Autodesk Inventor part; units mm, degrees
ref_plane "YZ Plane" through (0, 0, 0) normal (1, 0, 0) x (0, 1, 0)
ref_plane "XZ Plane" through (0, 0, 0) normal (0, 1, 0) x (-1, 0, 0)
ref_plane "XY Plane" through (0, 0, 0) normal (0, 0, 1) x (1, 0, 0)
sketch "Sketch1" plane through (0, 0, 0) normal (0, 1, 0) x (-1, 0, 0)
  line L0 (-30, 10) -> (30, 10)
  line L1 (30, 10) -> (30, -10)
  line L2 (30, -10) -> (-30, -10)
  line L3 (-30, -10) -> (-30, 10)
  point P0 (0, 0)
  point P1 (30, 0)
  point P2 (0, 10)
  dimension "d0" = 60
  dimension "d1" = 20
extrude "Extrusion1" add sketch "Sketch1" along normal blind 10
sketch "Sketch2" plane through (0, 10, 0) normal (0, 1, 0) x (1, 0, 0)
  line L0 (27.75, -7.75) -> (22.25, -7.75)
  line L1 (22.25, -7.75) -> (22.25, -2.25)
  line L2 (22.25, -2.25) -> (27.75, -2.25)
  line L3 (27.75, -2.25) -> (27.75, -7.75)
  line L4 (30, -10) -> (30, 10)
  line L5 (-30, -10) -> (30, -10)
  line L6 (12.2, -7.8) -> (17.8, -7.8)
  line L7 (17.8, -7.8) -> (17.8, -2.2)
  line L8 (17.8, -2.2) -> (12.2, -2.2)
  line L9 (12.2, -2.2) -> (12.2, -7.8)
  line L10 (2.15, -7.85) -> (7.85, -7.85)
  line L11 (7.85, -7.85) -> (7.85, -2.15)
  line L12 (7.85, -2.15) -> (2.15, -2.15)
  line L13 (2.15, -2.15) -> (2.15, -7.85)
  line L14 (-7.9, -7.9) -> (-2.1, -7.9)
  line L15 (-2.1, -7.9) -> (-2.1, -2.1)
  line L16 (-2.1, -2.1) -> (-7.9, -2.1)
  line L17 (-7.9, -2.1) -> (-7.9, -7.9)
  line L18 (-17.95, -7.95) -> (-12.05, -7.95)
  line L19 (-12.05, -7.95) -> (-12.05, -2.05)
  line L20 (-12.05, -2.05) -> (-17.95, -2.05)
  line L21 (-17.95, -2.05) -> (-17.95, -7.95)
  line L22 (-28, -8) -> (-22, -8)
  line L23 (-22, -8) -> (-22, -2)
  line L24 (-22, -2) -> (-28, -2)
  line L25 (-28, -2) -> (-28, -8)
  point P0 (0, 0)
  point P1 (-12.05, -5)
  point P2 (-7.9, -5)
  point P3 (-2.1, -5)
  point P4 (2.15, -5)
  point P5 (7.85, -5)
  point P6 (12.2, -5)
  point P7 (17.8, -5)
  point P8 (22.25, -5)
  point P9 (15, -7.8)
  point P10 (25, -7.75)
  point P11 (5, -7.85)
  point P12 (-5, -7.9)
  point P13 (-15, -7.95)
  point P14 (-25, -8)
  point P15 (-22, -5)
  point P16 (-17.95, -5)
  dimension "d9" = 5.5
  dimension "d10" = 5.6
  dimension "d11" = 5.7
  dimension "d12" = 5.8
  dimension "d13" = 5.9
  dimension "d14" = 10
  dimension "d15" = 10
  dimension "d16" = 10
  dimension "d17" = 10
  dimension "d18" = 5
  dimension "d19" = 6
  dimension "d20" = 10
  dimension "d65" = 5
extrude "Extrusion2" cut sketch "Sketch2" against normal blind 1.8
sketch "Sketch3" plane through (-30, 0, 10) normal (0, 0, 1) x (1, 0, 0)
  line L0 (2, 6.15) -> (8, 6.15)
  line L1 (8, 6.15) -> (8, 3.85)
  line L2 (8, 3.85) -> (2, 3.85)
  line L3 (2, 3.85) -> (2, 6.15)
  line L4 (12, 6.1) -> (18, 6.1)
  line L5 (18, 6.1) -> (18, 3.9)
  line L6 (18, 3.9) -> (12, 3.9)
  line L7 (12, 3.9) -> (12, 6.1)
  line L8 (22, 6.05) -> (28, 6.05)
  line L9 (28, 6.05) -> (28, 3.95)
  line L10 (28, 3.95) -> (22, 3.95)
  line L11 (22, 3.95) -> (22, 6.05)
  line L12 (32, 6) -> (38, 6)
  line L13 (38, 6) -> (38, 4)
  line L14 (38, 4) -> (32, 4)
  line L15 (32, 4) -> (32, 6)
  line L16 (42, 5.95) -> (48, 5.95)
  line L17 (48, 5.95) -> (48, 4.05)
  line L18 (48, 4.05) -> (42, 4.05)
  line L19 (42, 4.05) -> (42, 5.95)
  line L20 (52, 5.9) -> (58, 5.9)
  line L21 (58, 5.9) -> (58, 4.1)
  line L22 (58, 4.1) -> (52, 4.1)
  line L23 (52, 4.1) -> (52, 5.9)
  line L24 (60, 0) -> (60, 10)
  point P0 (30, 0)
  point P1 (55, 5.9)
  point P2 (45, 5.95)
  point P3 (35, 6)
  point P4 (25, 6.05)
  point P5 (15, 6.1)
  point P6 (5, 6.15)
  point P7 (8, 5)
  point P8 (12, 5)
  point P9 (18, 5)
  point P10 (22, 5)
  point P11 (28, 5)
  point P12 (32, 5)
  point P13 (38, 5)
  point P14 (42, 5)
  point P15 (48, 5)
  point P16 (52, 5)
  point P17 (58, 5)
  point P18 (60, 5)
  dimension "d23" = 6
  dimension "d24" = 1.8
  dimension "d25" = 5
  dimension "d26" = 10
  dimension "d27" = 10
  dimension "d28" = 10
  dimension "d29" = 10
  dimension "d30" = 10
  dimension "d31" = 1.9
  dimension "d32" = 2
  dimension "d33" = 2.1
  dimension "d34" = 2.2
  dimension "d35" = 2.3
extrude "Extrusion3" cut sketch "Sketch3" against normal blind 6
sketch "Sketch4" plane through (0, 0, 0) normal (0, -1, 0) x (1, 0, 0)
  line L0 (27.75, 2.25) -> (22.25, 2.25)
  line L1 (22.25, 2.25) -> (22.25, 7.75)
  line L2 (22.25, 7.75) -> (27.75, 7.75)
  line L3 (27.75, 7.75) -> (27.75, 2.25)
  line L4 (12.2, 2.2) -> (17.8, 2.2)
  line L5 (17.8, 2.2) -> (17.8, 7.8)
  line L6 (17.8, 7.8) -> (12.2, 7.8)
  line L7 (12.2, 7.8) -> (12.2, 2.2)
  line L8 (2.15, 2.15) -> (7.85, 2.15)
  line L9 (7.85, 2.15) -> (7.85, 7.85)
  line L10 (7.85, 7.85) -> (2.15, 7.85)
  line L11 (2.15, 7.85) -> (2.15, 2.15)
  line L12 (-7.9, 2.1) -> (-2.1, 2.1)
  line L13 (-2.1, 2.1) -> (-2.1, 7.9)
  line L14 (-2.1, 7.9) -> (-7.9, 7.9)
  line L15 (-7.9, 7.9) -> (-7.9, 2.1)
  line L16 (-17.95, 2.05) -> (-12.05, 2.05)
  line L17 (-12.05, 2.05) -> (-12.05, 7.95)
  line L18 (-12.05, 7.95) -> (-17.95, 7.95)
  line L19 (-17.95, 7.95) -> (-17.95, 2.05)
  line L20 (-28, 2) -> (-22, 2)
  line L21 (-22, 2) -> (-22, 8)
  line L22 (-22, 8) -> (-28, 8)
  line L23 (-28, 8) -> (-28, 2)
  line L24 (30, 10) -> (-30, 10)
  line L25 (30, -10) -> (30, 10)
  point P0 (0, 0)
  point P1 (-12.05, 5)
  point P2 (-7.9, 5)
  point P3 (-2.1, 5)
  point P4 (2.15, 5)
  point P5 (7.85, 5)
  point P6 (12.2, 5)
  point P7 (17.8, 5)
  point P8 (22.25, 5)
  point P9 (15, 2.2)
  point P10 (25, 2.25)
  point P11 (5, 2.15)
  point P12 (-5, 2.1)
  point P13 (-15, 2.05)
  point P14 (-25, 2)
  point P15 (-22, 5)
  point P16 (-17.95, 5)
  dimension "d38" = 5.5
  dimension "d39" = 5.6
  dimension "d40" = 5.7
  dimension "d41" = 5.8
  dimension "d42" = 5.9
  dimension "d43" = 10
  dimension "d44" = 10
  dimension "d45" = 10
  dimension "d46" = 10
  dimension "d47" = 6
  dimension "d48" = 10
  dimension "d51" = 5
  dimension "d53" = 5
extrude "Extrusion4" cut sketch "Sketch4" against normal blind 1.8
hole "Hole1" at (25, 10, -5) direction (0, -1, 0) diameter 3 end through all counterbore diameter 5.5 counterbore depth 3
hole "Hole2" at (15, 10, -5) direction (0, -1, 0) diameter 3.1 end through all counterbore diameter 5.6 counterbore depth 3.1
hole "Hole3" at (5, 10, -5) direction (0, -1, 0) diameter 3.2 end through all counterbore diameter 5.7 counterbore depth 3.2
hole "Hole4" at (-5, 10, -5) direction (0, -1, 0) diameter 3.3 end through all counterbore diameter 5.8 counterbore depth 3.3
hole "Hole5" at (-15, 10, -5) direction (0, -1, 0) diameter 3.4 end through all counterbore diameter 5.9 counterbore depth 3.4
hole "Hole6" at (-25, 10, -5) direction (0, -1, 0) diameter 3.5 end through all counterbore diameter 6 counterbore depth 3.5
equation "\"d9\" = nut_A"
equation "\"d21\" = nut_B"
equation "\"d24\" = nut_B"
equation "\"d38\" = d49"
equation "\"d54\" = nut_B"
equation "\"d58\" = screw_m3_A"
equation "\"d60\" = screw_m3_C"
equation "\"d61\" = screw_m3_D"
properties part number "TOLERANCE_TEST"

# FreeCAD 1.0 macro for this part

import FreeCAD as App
import Part
import Sketcher

V = App.Vector
Q = App.Units.Quantity


def add_polygon(sketch, points):
    """Adds a closed chain of lines whose ends are joined by coincident constraints."""
    first, n = sketch.GeometryCount, len(points)
    for a, b in zip(points, points[1:] + points[:1]):
        sketch.addGeometry(Part.LineSegment(App.Vector(*a, 0), App.Vector(*b, 0)), False)
    for i in range(n):
        sketch.addConstraint(Sketcher.Constraint("Coincident", first + i, 2, first + (i + 1) % n, 1))

doc = App.newDocument("Part")
body = doc.addObject("PartDesign::Body", "Body")

# Sketch on XZ plane
sketch1 = body.newObject("Sketcher::SketchObject", "Sketch")
sketch1.AttachmentSupport = (doc.getObject("XZ_Plane"), [""])
sketch1.MapMode = "FlatFace"
add_polygon(sketch1, [(-30, 10), (30, 10), (30, -10), (-30, -10)])  # lines 0-3
sketch1.addConstraint(Sketcher.Constraint("Horizontal", 0))
sketch1.addConstraint(Sketcher.Constraint("Vertical", 1))
sketch1.addConstraint(Sketcher.Constraint("Horizontal", 2))
sketch1.addConstraint(Sketcher.Constraint("Vertical", 3))
sketch1.addConstraint(Sketcher.Constraint("Symmetric", 0, 2, 2, 2, -1, 1))
sketch1.addConstraint(Sketcher.Constraint("DistanceX", 0, 1, 0, 2, Q("60 mm")))
sketch1.addConstraint(Sketcher.Constraint("DistanceY", 1, 2, 1, 1, Q("20 mm")))
pad1 = body.newObject("PartDesign::Pad", "Pad")
pad1.Profile = sketch1
pad1.Length = 10
pad1.Reversed = True

# Sketch on XZ plane
sketch2 = body.newObject("Sketcher::SketchObject", "Sketch001")
sketch2.AttachmentSupport = (doc.getObject("XZ_Plane"), [""])
sketch2.MapMode = "FlatFace"
sketch2.AttachmentOffset = App.Placement(V(0, 0, -10), App.Rotation())
add_polygon(sketch2, [(22.25, 7.75), (27.75, 7.75), (27.75, 2.25), (22.25, 2.25)])  # lines 0-3
add_polygon(sketch2, [(12.2, 2.2), (12.2, 7.8), (17.8, 7.8), (17.8, 2.2)])  # lines 4-7
add_polygon(sketch2, [(2.15, 2.15), (2.15, 7.85), (7.85, 7.85), (7.85, 2.15)])  # lines 8-11
add_polygon(sketch2, [(-7.9, 2.1), (-7.9, 7.9), (-2.1, 7.9), (-2.1, 2.1)])  # lines 12-15
add_polygon(sketch2, [(-17.95, 2.05), (-17.95, 7.95), (-12.05, 7.95), (-12.05, 2.05)])  # lines 16-19
add_polygon(sketch2, [(-28, 2), (-28, 8), (-22, 8), (-22, 2)])  # lines 20-23
sketch2.addConstraint(Sketcher.Constraint("Horizontal", 0))
sketch2.addConstraint(Sketcher.Constraint("Vertical", 1))
sketch2.addConstraint(Sketcher.Constraint("Horizontal", 2))
sketch2.addConstraint(Sketcher.Constraint("Vertical", 3))
sketch2.addConstraint(Sketcher.Constraint("Vertical", 4))
sketch2.addConstraint(Sketcher.Constraint("Horizontal", 5))
sketch2.addConstraint(Sketcher.Constraint("Vertical", 6))
sketch2.addConstraint(Sketcher.Constraint("Horizontal", 7))
sketch2.addConstraint(Sketcher.Constraint("Vertical", 8))
sketch2.addConstraint(Sketcher.Constraint("Horizontal", 9))
sketch2.addConstraint(Sketcher.Constraint("Vertical", 10))
sketch2.addConstraint(Sketcher.Constraint("Horizontal", 11))
sketch2.addConstraint(Sketcher.Constraint("Vertical", 12))
sketch2.addConstraint(Sketcher.Constraint("Horizontal", 13))
sketch2.addConstraint(Sketcher.Constraint("Vertical", 14))
sketch2.addConstraint(Sketcher.Constraint("Horizontal", 15))
sketch2.addConstraint(Sketcher.Constraint("Vertical", 16))
sketch2.addConstraint(Sketcher.Constraint("Horizontal", 17))
sketch2.addConstraint(Sketcher.Constraint("Vertical", 18))
sketch2.addConstraint(Sketcher.Constraint("Horizontal", 19))
sketch2.addConstraint(Sketcher.Constraint("Vertical", 20))
sketch2.addConstraint(Sketcher.Constraint("Horizontal", 21))
sketch2.addConstraint(Sketcher.Constraint("Vertical", 22))
sketch2.addConstraint(Sketcher.Constraint("Horizontal", 23))
sketch2.addConstraint(Sketcher.Constraint("Equal", 2, 1))
sketch2.addConstraint(Sketcher.Constraint("Equal", 7, 4))
sketch2.addConstraint(Sketcher.Constraint("Equal", 11, 8))
sketch2.addConstraint(Sketcher.Constraint("Equal", 15, 12))
sketch2.addConstraint(Sketcher.Constraint("Equal", 19, 16))
sketch2.addConstraint(Sketcher.Constraint("Equal", 23, 20))
sketch2.addConstraint(Sketcher.Constraint("DistanceX", 21, 1, 21, 2, Q("6 mm")))
sketch2.addConstraint(Sketcher.Constraint("DistanceX", 0, 1, 0, 2, Q("5.5 mm")))
sketch2.addConstraint(Sketcher.Constraint("DistanceX", 5, 1, 5, 2, Q("5.6 mm")))
sketch2.addConstraint(Sketcher.Constraint("DistanceX", 9, 1, 9, 2, Q("5.7 mm")))
sketch2.addConstraint(Sketcher.Constraint("DistanceX", 13, 1, 13, 2, Q("5.8 mm")))
sketch2.addConstraint(Sketcher.Constraint("DistanceX", 17, 1, 17, 2, Q("5.9 mm")))
sketch2.addConstraint(Sketcher.Constraint("DistanceX", 20, 2, -1, 1, Q("28 mm")))
sketch2.addConstraint(Sketcher.Constraint("DistanceY", -1, 1, 20, 2, Q("8 mm")))
sketch2.addConstraint(Sketcher.Constraint("DistanceX", -1, 1, 4, 2, Q("12.2 mm")))
sketch2.addConstraint(Sketcher.Constraint("DistanceY", -1, 1, 4, 2, Q("7.8 mm")))
sketch2.addConstraint(Sketcher.Constraint("DistanceX", 12, 2, -1, 1, Q("7.9 mm")))
sketch2.addConstraint(Sketcher.Constraint("DistanceY", -1, 1, 12, 2, Q("7.9 mm")))
sketch2.addConstraint(Sketcher.Constraint("DistanceX", 8, 2, 3, 2, Q("20.1 mm")))
sketch2.addConstraint(Sketcher.Constraint("DistanceY", 3, 2, 8, 2, Q("0.1 mm")))
sketch2.addConstraint(Sketcher.Constraint("DistanceX", 16, 2, 8, 2, Q("20.1 mm")))
sketch2.addConstraint(Sketcher.Constraint("DistanceY", 8, 2, 16, 2, Q("0.1 mm")))
sketch2.addConstraint(Sketcher.Constraint("DistanceX", -1, 1, 0, 2, Q("27.75 mm")))
sketch2.addConstraint(Sketcher.Constraint("DistanceY", -1, 1, 0, 2, Q("7.75 mm")))
pocket1 = body.newObject("PartDesign::Pocket", "Pocket")
pocket1.Profile = sketch2
pocket1.Length = 1.8
pocket1.Reversed = True

# Sketch on XY plane
sketch3 = body.newObject("Sketcher::SketchObject", "Sketch002")
sketch3.AttachmentSupport = (doc.getObject("XY_Plane"), [""])
sketch3.MapMode = "FlatFace"
sketch3.AttachmentOffset = App.Placement(V(0, 0, 10), App.Rotation())
add_polygon(sketch3, [(-22, 6.15), (-28, 6.15), (-28, 3.85), (-22, 3.85)])  # lines 0-3
add_polygon(sketch3, [(-12, 6.1), (-18, 6.1), (-18, 3.9), (-12, 3.9)])  # lines 4-7
add_polygon(sketch3, [(-2, 6.05), (-8, 6.05), (-8, 3.95), (-2, 3.95)])  # lines 8-11
add_polygon(sketch3, [(8, 6), (2, 6), (2, 4), (8, 4)])  # lines 12-15
add_polygon(sketch3, [(18, 5.95), (12, 5.95), (12, 4.05), (18, 4.05)])  # lines 16-19
add_polygon(sketch3, [(28, 5.9), (22, 5.9), (22, 4.1), (28, 4.1)])  # lines 20-23
sketch3.addConstraint(Sketcher.Constraint("Horizontal", 0))
sketch3.addConstraint(Sketcher.Constraint("Vertical", 1))
sketch3.addConstraint(Sketcher.Constraint("Horizontal", 2))
sketch3.addConstraint(Sketcher.Constraint("Vertical", 3))
sketch3.addConstraint(Sketcher.Constraint("Horizontal", 4))
sketch3.addConstraint(Sketcher.Constraint("Vertical", 5))
sketch3.addConstraint(Sketcher.Constraint("Horizontal", 6))
sketch3.addConstraint(Sketcher.Constraint("Vertical", 7))
sketch3.addConstraint(Sketcher.Constraint("Horizontal", 8))
sketch3.addConstraint(Sketcher.Constraint("Vertical", 9))
sketch3.addConstraint(Sketcher.Constraint("Horizontal", 10))
sketch3.addConstraint(Sketcher.Constraint("Vertical", 11))
sketch3.addConstraint(Sketcher.Constraint("Horizontal", 12))
sketch3.addConstraint(Sketcher.Constraint("Vertical", 13))
sketch3.addConstraint(Sketcher.Constraint("Horizontal", 14))
sketch3.addConstraint(Sketcher.Constraint("Vertical", 15))
sketch3.addConstraint(Sketcher.Constraint("Horizontal", 16))
sketch3.addConstraint(Sketcher.Constraint("Vertical", 17))
sketch3.addConstraint(Sketcher.Constraint("Horizontal", 18))
sketch3.addConstraint(Sketcher.Constraint("Vertical", 19))
sketch3.addConstraint(Sketcher.Constraint("Horizontal", 20))
sketch3.addConstraint(Sketcher.Constraint("Vertical", 21))
sketch3.addConstraint(Sketcher.Constraint("Horizontal", 22))
sketch3.addConstraint(Sketcher.Constraint("Vertical", 23))
sketch3.addConstraint(Sketcher.Constraint("Equal", 2, 4))
sketch3.addConstraint(Sketcher.Constraint("Equal", 6, 8))
sketch3.addConstraint(Sketcher.Constraint("Equal", 10, 12))
sketch3.addConstraint(Sketcher.Constraint("Equal", 14, 16))
sketch3.addConstraint(Sketcher.Constraint("Equal", 18, 20))
sketch3.addConstraint(Sketcher.Constraint("DistanceX", 0, 2, 0, 1, Q("6 mm")))
sketch3.addConstraint(Sketcher.Constraint("DistanceY", 13, 2, 13, 1, Q("2 mm")))
sketch3.addConstraint(Sketcher.Constraint("DistanceY", 1, 2, 1, 1, Q("2.3 mm")))
sketch3.addConstraint(Sketcher.Constraint("DistanceY", 5, 2, 5, 1, Q("2.2 mm")))
sketch3.addConstraint(Sketcher.Constraint("DistanceY", 9, 2, 9, 1, Q("2.1 mm")))
sketch3.addConstraint(Sketcher.Constraint("DistanceY", 17, 2, 17, 1, Q("1.9 mm")))
sketch3.addConstraint(Sketcher.Constraint("DistanceY", 21, 2, 21, 1, Q("1.8 mm")))
sketch3.addConstraint(Sketcher.Constraint("DistanceX", 10, 2, -1, 1, Q("2 mm")))
sketch3.addConstraint(Sketcher.Constraint("DistanceX", -1, 1, 12, 2, Q("2 mm")))
sketch3.addConstraint(Sketcher.Constraint("DistanceY", -1, 1, 12, 2, Q("6 mm")))
sketch3.addConstraint(Sketcher.Constraint("DistanceX", 0, 2, 4, 2, Q("10 mm")))
sketch3.addConstraint(Sketcher.Constraint("DistanceX", 4, 2, 8, 2, Q("10 mm")))
sketch3.addConstraint(Sketcher.Constraint("DistanceX", 12, 2, 16, 2, Q("10 mm")))
sketch3.addConstraint(Sketcher.Constraint("DistanceX", 16, 2, 20, 2, Q("10 mm")))
sketch3.addConstraint(Sketcher.Constraint("DistanceY", -1, 1, 4, 2, Q("6.1 mm")))
sketch3.addConstraint(Sketcher.Constraint("DistanceY", -1, 1, 20, 2, Q("5.9 mm")))
sketch3.addConstraint(Sketcher.Constraint("DistanceY", 8, 2, 3, 2, Q("0.1 mm")))
sketch3.addConstraint(Sketcher.Constraint("DistanceY", 16, 2, 11, 2, Q("0.1 mm")))
sketch3.addConstraint(Sketcher.Constraint("DistanceY", -1, 1, 0, 2, Q("6.15 mm")))
pocket2 = body.newObject("PartDesign::Pocket", "Pocket001")
pocket2.Profile = sketch3
pocket2.Length = 6

# Sketch on XZ plane
sketch4 = body.newObject("Sketcher::SketchObject", "Sketch003")
sketch4.AttachmentSupport = (doc.getObject("XZ_Plane"), [""])
sketch4.MapMode = "FlatFace"
add_polygon(sketch4, [(22.25, 2.25), (27.75, 2.25), (27.75, 7.75), (22.25, 7.75)])  # lines 0-3
add_polygon(sketch4, [(12.2, 7.8), (12.2, 2.2), (17.8, 2.2), (17.8, 7.8)])  # lines 4-7
add_polygon(sketch4, [(2.15, 7.85), (2.15, 2.15), (7.85, 2.15), (7.85, 7.85)])  # lines 8-11
add_polygon(sketch4, [(-7.9, 7.9), (-7.9, 2.1), (-2.1, 2.1), (-2.1, 7.9)])  # lines 12-15
add_polygon(sketch4, [(-17.95, 7.95), (-17.95, 2.05), (-12.05, 2.05), (-12.05, 7.95)])  # lines 16-19
add_polygon(sketch4, [(-28, 8), (-28, 2), (-22, 2), (-22, 8)])  # lines 20-23
sketch4.addConstraint(Sketcher.Constraint("Horizontal", 0))
sketch4.addConstraint(Sketcher.Constraint("Vertical", 1))
sketch4.addConstraint(Sketcher.Constraint("Horizontal", 2))
sketch4.addConstraint(Sketcher.Constraint("Vertical", 3))
sketch4.addConstraint(Sketcher.Constraint("Vertical", 4))
sketch4.addConstraint(Sketcher.Constraint("Horizontal", 5))
sketch4.addConstraint(Sketcher.Constraint("Vertical", 6))
sketch4.addConstraint(Sketcher.Constraint("Horizontal", 7))
sketch4.addConstraint(Sketcher.Constraint("Vertical", 8))
sketch4.addConstraint(Sketcher.Constraint("Horizontal", 9))
sketch4.addConstraint(Sketcher.Constraint("Vertical", 10))
sketch4.addConstraint(Sketcher.Constraint("Horizontal", 11))
sketch4.addConstraint(Sketcher.Constraint("Vertical", 12))
sketch4.addConstraint(Sketcher.Constraint("Horizontal", 13))
sketch4.addConstraint(Sketcher.Constraint("Vertical", 14))
sketch4.addConstraint(Sketcher.Constraint("Horizontal", 15))
sketch4.addConstraint(Sketcher.Constraint("Vertical", 16))
sketch4.addConstraint(Sketcher.Constraint("Horizontal", 17))
sketch4.addConstraint(Sketcher.Constraint("Vertical", 18))
sketch4.addConstraint(Sketcher.Constraint("Horizontal", 19))
sketch4.addConstraint(Sketcher.Constraint("Vertical", 20))
sketch4.addConstraint(Sketcher.Constraint("Horizontal", 21))
sketch4.addConstraint(Sketcher.Constraint("Vertical", 22))
sketch4.addConstraint(Sketcher.Constraint("Horizontal", 23))
sketch4.addConstraint(Sketcher.Constraint("Equal", 2, 1))
sketch4.addConstraint(Sketcher.Constraint("Equal", 7, 4))
sketch4.addConstraint(Sketcher.Constraint("Equal", 11, 8))
sketch4.addConstraint(Sketcher.Constraint("Equal", 15, 12))
sketch4.addConstraint(Sketcher.Constraint("Equal", 19, 16))
sketch4.addConstraint(Sketcher.Constraint("Equal", 23, 20))
sketch4.addConstraint(Sketcher.Constraint("DistanceX", 21, 1, 21, 2, Q("6 mm")))
sketch4.addConstraint(Sketcher.Constraint("DistanceX", 0, 1, 0, 2, Q("5.5 mm")))
sketch4.addConstraint(Sketcher.Constraint("DistanceX", 5, 1, 5, 2, Q("5.6 mm")))
sketch4.addConstraint(Sketcher.Constraint("DistanceX", 9, 1, 9, 2, Q("5.7 mm")))
sketch4.addConstraint(Sketcher.Constraint("DistanceX", 13, 1, 13, 2, Q("5.8 mm")))
sketch4.addConstraint(Sketcher.Constraint("DistanceX", 17, 1, 17, 2, Q("5.9 mm")))
sketch4.addConstraint(Sketcher.Constraint("DistanceX", 20, 2, -1, 1, Q("28 mm")))
sketch4.addConstraint(Sketcher.Constraint("DistanceY", -1, 1, 20, 2, Q("2 mm")))
sketch4.addConstraint(Sketcher.Constraint("DistanceX", -1, 1, 4, 2, Q("12.2 mm")))
sketch4.addConstraint(Sketcher.Constraint("DistanceY", -1, 1, 4, 2, Q("2.2 mm")))
sketch4.addConstraint(Sketcher.Constraint("DistanceX", 12, 2, -1, 1, Q("7.9 mm")))
sketch4.addConstraint(Sketcher.Constraint("DistanceY", -1, 1, 12, 2, Q("2.1 mm")))
sketch4.addConstraint(Sketcher.Constraint("DistanceX", 8, 2, 3, 2, Q("20.1 mm")))
sketch4.addConstraint(Sketcher.Constraint("DistanceY", 8, 2, 3, 2, Q("0.1 mm")))
sketch4.addConstraint(Sketcher.Constraint("DistanceX", 16, 2, 8, 2, Q("20.1 mm")))
sketch4.addConstraint(Sketcher.Constraint("DistanceY", 16, 2, 8, 2, Q("0.1 mm")))
sketch4.addConstraint(Sketcher.Constraint("DistanceX", -1, 1, 0, 2, Q("27.75 mm")))
sketch4.addConstraint(Sketcher.Constraint("DistanceY", -1, 1, 0, 2, Q("2.25 mm")))
pocket3 = body.newObject("PartDesign::Pocket", "Pocket002")
pocket3.Profile = sketch4
pocket3.Length = 1.8

# Sketch on XZ plane
sketch5 = body.newObject("Sketcher::SketchObject", "Sketch004")
sketch5.AttachmentSupport = (doc.getObject("XZ_Plane"), [""])
sketch5.MapMode = "FlatFace"
sketch5.AttachmentOffset = App.Placement(V(0, 0, -10), App.Rotation())
sketch5.addGeometry(Part.Circle(V(25, -5, 0), V(0, 0, 1), 1.5), False)
sketch5.addConstraint(Sketcher.Constraint("Diameter", 0, Q("3 mm")))
sketch5.addConstraint(Sketcher.Constraint("DistanceX", -1, 1, 0, 3, Q("25 mm")))
sketch5.addConstraint(Sketcher.Constraint("DistanceY", 0, 3, -1, 1, Q("5 mm")))
doc.recompute()
hole = body.newObject("PartDesign::Hole", "Hole")
hole.Profile = sketch5
hole.ThreadType = "None"
hole.Diameter = 3
hole.DepthType = "ThroughAll"
hole.HoleCutType = "Counterbore"
hole.HoleCutDiameter = 5.5
hole.HoleCutDepth = 3
hole.Reversed = True

# Sketch on XZ plane
sketch6 = body.newObject("Sketcher::SketchObject", "Sketch005")
sketch6.AttachmentSupport = (doc.getObject("XZ_Plane"), [""])
sketch6.MapMode = "FlatFace"
sketch6.AttachmentOffset = App.Placement(V(0, 0, -10), App.Rotation())
sketch6.addGeometry(Part.Circle(V(15, -5, 0), V(0, 0, 1), 1.55), False)
sketch6.addConstraint(Sketcher.Constraint("Diameter", 0, Q("3.1 mm")))
sketch6.addConstraint(Sketcher.Constraint("DistanceX", -1, 1, 0, 3, Q("15 mm")))
sketch6.addConstraint(Sketcher.Constraint("DistanceY", 0, 3, -1, 1, Q("5 mm")))
doc.recompute()
hole2 = body.newObject("PartDesign::Hole", "Hole001")
hole2.Profile = sketch6
hole2.ThreadType = "None"
hole2.Diameter = 3.1
hole2.DepthType = "ThroughAll"
hole2.HoleCutType = "Counterbore"
hole2.HoleCutDiameter = 5.6
hole2.HoleCutDepth = 3.1
hole2.Reversed = True

# Sketch on XZ plane
sketch7 = body.newObject("Sketcher::SketchObject", "Sketch006")
sketch7.AttachmentSupport = (doc.getObject("XZ_Plane"), [""])
sketch7.MapMode = "FlatFace"
sketch7.AttachmentOffset = App.Placement(V(0, 0, -10), App.Rotation())
sketch7.addGeometry(Part.Circle(V(5, -5, 0), V(0, 0, 1), 1.6), False)
sketch7.addConstraint(Sketcher.Constraint("Diameter", 0, Q("3.2 mm")))
sketch7.addConstraint(Sketcher.Constraint("DistanceX", -1, 1, 0, 3, Q("5 mm")))
sketch7.addConstraint(Sketcher.Constraint("DistanceY", 0, 3, -1, 1, Q("5 mm")))
doc.recompute()
hole3 = body.newObject("PartDesign::Hole", "Hole002")
hole3.Profile = sketch7
hole3.ThreadType = "None"
hole3.Diameter = 3.2
hole3.DepthType = "ThroughAll"
hole3.HoleCutType = "Counterbore"
hole3.HoleCutDiameter = 5.7
hole3.HoleCutDepth = 3.2
hole3.Reversed = True

# Sketch on XZ plane
sketch8 = body.newObject("Sketcher::SketchObject", "Sketch007")
sketch8.AttachmentSupport = (doc.getObject("XZ_Plane"), [""])
sketch8.MapMode = "FlatFace"
sketch8.AttachmentOffset = App.Placement(V(0, 0, -10), App.Rotation())
sketch8.addGeometry(Part.Circle(V(-5, -5, 0), V(0, 0, 1), 1.65), False)
sketch8.addConstraint(Sketcher.Constraint("Diameter", 0, Q("3.3 mm")))
sketch8.addConstraint(Sketcher.Constraint("DistanceX", 0, 3, -1, 1, Q("5 mm")))
sketch8.addConstraint(Sketcher.Constraint("DistanceY", 0, 3, -1, 1, Q("5 mm")))
doc.recompute()
hole4 = body.newObject("PartDesign::Hole", "Hole003")
hole4.Profile = sketch8
hole4.ThreadType = "None"
hole4.Diameter = 3.3
hole4.DepthType = "ThroughAll"
hole4.HoleCutType = "Counterbore"
hole4.HoleCutDiameter = 5.8
hole4.HoleCutDepth = 3.3
hole4.Reversed = True

# Sketch on XZ plane
sketch9 = body.newObject("Sketcher::SketchObject", "Sketch008")
sketch9.AttachmentSupport = (doc.getObject("XZ_Plane"), [""])
sketch9.MapMode = "FlatFace"
sketch9.AttachmentOffset = App.Placement(V(0, 0, -10), App.Rotation())
sketch9.addGeometry(Part.Circle(V(-15, -5, 0), V(0, 0, 1), 1.7), False)
sketch9.addConstraint(Sketcher.Constraint("Diameter", 0, Q("3.4 mm")))
sketch9.addConstraint(Sketcher.Constraint("DistanceX", 0, 3, -1, 1, Q("15 mm")))
sketch9.addConstraint(Sketcher.Constraint("DistanceY", 0, 3, -1, 1, Q("5 mm")))
doc.recompute()
hole5 = body.newObject("PartDesign::Hole", "Hole004")
hole5.Profile = sketch9
hole5.ThreadType = "None"
hole5.Diameter = 3.4
hole5.DepthType = "ThroughAll"
hole5.HoleCutType = "Counterbore"
hole5.HoleCutDiameter = 5.9
hole5.HoleCutDepth = 3.4
hole5.Reversed = True

# Sketch on XZ plane
sketch10 = body.newObject("Sketcher::SketchObject", "Sketch009")
sketch10.AttachmentSupport = (doc.getObject("XZ_Plane"), [""])
sketch10.MapMode = "FlatFace"
sketch10.AttachmentOffset = App.Placement(V(0, 0, -10), App.Rotation())
sketch10.addGeometry(Part.Circle(V(-25, -5, 0), V(0, 0, 1), 1.75), False)
sketch10.addConstraint(Sketcher.Constraint("Diameter", 0, Q("3.5 mm")))
sketch10.addConstraint(Sketcher.Constraint("DistanceX", 0, 3, -1, 1, Q("25 mm")))
sketch10.addConstraint(Sketcher.Constraint("DistanceY", 0, 3, -1, 1, Q("5 mm")))
doc.recompute()
hole6 = body.newObject("PartDesign::Hole", "Hole005")
hole6.Profile = sketch10
hole6.ThreadType = "None"
hole6.Diameter = 3.5
hole6.DepthType = "ThroughAll"
hole6.HoleCutType = "Counterbore"
hole6.HoleCutDiameter = 6
hole6.HoleCutDepth = 3.5
hole6.Reversed = True

doc.recompute()
